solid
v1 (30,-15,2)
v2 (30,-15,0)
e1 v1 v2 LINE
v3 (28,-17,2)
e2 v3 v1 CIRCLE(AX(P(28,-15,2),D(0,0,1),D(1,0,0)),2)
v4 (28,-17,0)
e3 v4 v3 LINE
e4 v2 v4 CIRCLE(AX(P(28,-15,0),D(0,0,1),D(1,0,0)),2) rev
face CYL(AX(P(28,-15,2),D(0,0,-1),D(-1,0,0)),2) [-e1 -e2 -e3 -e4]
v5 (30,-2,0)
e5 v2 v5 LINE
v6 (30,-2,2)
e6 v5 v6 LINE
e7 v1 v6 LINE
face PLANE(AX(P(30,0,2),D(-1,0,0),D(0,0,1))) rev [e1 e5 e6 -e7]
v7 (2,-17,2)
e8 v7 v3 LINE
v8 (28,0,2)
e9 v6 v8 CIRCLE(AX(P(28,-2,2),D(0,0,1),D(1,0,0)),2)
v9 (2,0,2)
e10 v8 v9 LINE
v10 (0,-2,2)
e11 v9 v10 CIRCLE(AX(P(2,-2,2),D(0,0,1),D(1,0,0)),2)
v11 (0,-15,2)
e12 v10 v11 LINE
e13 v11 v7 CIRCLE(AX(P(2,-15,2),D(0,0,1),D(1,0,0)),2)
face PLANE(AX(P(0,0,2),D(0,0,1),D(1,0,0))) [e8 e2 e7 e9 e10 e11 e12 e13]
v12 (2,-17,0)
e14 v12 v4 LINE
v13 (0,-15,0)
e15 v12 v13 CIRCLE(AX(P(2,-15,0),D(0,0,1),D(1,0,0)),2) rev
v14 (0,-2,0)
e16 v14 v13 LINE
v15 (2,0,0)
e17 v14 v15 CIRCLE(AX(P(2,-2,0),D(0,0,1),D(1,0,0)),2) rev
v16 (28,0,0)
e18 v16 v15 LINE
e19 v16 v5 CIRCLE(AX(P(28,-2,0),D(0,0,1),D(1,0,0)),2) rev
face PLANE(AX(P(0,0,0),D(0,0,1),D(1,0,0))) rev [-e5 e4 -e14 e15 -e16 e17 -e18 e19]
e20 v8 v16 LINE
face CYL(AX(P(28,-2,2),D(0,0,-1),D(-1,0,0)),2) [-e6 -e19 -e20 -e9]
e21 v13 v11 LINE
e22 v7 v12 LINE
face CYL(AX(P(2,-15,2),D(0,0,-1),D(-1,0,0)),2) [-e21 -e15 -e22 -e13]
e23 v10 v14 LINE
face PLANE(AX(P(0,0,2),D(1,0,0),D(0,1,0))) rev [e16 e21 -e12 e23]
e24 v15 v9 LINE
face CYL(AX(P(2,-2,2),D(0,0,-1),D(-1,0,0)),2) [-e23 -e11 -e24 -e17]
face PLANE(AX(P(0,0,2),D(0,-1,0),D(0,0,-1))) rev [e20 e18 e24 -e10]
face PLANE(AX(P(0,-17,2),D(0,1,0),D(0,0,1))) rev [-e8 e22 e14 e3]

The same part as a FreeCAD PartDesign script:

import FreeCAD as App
import Part
import Sketcher
Q = App.Units.Quantity


def edges_at(feature, points):
    """Names of the edges that pass closest to the given points."""
    edges = feature.Shape.Edges
    near = lambda p: min(range(len(edges)), key=lambda i: edges[i].distToShape(Part.Vertex(*p))[0])
    return sorted({f"Edge{near(p) + 1}" for p in points})

doc = App.newDocument("Part")
body = doc.addObject("PartDesign::Body", "Body")

# Sketch on XY plane
sketch1 = doc.addObject("Sketcher::SketchObject", "Sketch")
body.addObject(sketch1)
sketch1.AttachmentSupport = (doc.XY_Plane, [""])
sketch1.MapMode = "FlatFace"
sketch1.addGeometry([
    Part.LineSegment(App.Vector(0, 0, 0), App.Vector(0, -17, 0)),
    Part.LineSegment(App.Vector(0, -17, 0), App.Vector(30, -17, 0)),
    Part.LineSegment(App.Vector(30, -17, 0), App.Vector(30, 0, 0)),
    Part.LineSegment(App.Vector(30, 0, 0), App.Vector(0, 0, 0)),
], False)
sketch1.addConstraint([
    Sketcher.Constraint("Coincident", 0, 2, 1, 1),
    Sketcher.Constraint("Coincident", 1, 2, 2, 1),
    Sketcher.Constraint("Coincident", 2, 2, 3, 1),
    Sketcher.Constraint("Coincident", 3, 2, 0, 1),
    Sketcher.Constraint("Vertical", 0),
    Sketcher.Constraint("Horizontal", 1),
    Sketcher.Constraint("Vertical", 2),
    Sketcher.Constraint("Horizontal", 3),
    Sketcher.Constraint("Coincident", 3, 2, -1, 1),
    Sketcher.Constraint("DistanceX", 1, 1, 1, 2, Q("30 mm")),
    Sketcher.Constraint("DistanceY", 0, 2, 0, 1, Q("17 mm")),
])
pad1 = doc.addObject("PartDesign::Pad", "Pad")
body.addObject(pad1)
pad1.Profile = sketch1
pad1.Length = 2
doc.recompute()

fillet = doc.addObject("PartDesign::Fillet", "Fillet")
body.addObject(fillet)
fillet.Base = (pad1, edges_at(pad1, [
    (0, 0, 1),
    (30, 0, 1),
    (30, -17, 1),
    (0, -17, 1),
]))
fillet.Radius = 2

doc.recompute()
